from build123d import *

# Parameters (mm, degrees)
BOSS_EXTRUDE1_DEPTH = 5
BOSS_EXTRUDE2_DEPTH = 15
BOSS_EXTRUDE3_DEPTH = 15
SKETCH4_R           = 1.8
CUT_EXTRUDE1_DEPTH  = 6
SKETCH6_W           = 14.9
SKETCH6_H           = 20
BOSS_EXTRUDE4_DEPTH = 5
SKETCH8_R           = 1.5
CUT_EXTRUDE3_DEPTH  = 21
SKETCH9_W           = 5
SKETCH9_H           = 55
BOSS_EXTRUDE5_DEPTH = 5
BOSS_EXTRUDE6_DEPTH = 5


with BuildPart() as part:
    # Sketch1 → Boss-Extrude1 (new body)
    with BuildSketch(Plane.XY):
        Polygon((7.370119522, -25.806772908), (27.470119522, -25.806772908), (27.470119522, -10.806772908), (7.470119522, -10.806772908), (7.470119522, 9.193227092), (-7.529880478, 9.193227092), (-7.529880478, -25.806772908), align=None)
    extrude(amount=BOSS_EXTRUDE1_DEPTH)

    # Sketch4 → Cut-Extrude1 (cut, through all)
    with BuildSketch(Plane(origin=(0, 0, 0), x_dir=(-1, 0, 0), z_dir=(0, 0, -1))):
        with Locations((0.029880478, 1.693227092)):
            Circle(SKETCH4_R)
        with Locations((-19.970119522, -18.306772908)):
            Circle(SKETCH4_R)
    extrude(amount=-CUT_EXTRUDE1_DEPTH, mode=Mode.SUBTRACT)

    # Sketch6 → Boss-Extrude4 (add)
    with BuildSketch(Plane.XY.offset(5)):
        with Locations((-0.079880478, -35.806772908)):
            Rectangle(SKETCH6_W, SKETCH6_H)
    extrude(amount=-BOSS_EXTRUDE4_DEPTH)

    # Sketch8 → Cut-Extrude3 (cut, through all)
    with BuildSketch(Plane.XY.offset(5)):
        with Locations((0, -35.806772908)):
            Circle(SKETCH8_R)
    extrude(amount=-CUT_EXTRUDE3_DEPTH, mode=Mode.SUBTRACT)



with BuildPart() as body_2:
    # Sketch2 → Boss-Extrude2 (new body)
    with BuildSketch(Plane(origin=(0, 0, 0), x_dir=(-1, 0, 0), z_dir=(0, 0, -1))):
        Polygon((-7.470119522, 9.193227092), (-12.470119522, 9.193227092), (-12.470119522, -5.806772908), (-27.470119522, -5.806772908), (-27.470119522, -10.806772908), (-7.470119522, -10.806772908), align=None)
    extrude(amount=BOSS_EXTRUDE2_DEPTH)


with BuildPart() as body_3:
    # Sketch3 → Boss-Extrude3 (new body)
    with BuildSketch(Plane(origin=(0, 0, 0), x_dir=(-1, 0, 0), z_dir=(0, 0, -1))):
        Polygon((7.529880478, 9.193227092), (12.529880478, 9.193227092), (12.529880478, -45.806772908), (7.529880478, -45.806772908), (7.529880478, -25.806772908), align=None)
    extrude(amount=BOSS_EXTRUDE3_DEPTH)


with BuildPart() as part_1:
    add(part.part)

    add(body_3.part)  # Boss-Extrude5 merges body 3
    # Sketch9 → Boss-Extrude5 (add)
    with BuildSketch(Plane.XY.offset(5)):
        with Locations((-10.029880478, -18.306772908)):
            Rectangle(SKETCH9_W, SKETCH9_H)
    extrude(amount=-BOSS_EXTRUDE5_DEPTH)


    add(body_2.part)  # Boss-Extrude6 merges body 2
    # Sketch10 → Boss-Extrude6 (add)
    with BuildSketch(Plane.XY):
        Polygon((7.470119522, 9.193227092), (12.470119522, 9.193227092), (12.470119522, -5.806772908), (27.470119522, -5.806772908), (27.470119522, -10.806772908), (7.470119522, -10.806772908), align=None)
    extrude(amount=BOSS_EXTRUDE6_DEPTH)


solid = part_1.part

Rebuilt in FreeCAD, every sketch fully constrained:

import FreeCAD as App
import Part
import Sketcher

V = App.Vector
Q = App.Units.Quantity

doc = App.newDocument("Part")
body = doc.addObject("PartDesign::Body", "Body")

# Sketch on XY plane
sketch1 = doc.addObject("Sketcher::SketchObject", "Sketch")
body.addObject(sketch1)
sketch1.AttachmentSupport = (doc.XY_Plane, [""])
sketch1.MapMode = "FlatFace"
sketch1.addGeometry([
    Part.LineSegment(V(27.47012, -25.806773, 0), V(27.47012, -10.806773, 0)),  # 0
    Part.LineSegment(V(27.47012, -10.806773, 0), V(7.47012, -10.806773, 0)),  # 1
    Part.LineSegment(V(7.47012, -10.806773, 0), V(7.47012, 9.193227, 0)),  # 2
    Part.LineSegment(V(7.47012, 9.193227, 0), V(-7.52988, 9.193227, 0)),  # 3
    Part.LineSegment(V(-7.52988, 9.193227, 0), V(-7.52988, -25.806773, 0)),  # 4
    Part.LineSegment(V(-7.52988, -25.806773, 0), V(27.47012, -25.806773, 0)),  # 5
], False)
sketch1.addConstraint([
    Sketcher.Constraint("Coincident", 0, 2, 1, 1),
    Sketcher.Constraint("Coincident", 1, 2, 2, 1),
    Sketcher.Constraint("Coincident", 2, 2, 3, 1),
    Sketcher.Constraint("Coincident", 3, 2, 4, 1),
    Sketcher.Constraint("Coincident", 4, 2, 5, 1),
    Sketcher.Constraint("Coincident", 5, 2, 0, 1),
    Sketcher.Constraint("Vertical", 0),
    Sketcher.Constraint("Horizontal", 1),
    Sketcher.Constraint("Vertical", 2),
    Sketcher.Constraint("Horizontal", 3),
    Sketcher.Constraint("Vertical", 4),
    Sketcher.Constraint("Horizontal", 5),
    Sketcher.Constraint("Equal", 3, 0),
    Sketcher.Constraint("Equal", 1, 2),
    Sketcher.Constraint("DistanceX", 1, 2, 1, 1, Q("20 mm")),
    Sketcher.Constraint("DistanceX", 3, 2, 3, 1, Q("15 mm")),
    Sketcher.Constraint("DistanceX", -1, 1, 0, 2, Q("27.47012 mm")),
    Sketcher.Constraint("DistanceY", 0, 2, -1, 1, Q("10.806773 mm")),
])
pad1 = doc.addObject("PartDesign::Pad", "Pad")
body.addObject(pad1)
pad1.Profile = sketch1
pad1.Length = 5

# Sketch on XY plane
sketch2 = doc.addObject("Sketcher::SketchObject", "Sketch001")
body.addObject(sketch2)
sketch2.AttachmentSupport = (doc.XY_Plane, [""])
sketch2.MapMode = "FlatFace"
sketch2.addGeometry([
    Part.Circle(V(-0.02988, 1.693227, 0), V(0, 0, 1), 1.8),
    Part.Circle(V(19.97012, -18.306773, 0), V(0, 0, 1), 1.8),
], False)
sketch2.addConstraint([
    Sketcher.Constraint("Equal", 0, 1),
    Sketcher.Constraint("Diameter", 0, Q("3.6 mm")),
    Sketcher.Constraint("DistanceX", 0, 3, 1, 3, Q("20 mm")),
    Sketcher.Constraint("DistanceY", 1, 3, 0, 3, Q("20 mm")),
    Sketcher.Constraint("DistanceX", 0, 3, -1, 1, Q("0.02988 mm")),
    Sketcher.Constraint("DistanceY", -1, 1, 0, 3, Q("1.693227 mm")),
])
pocket1 = doc.addObject("PartDesign::Pocket", "Pocket")
body.addObject(pocket1)
pocket1.Profile = sketch2
pocket1.Type = "ThroughAll"
pocket1.Reversed = True

# Sketch on XY plane
sketch3 = doc.addObject("Sketcher::SketchObject", "Sketch002")
body.addObject(sketch3)
sketch3.AttachmentSupport = (doc.XY_Plane, [""])
sketch3.MapMode = "FlatFace"
sketch3.AttachmentOffset = App.Placement(V(0, 0, 5), App.Rotation())
sketch3.addGeometry([
    Part.LineSegment(V(-7.52988, -25.806773, 0), V(-7.52988, -45.806773, 0)),
    Part.LineSegment(V(-7.52988, -45.806773, 0), V(7.37012, -45.806773, 0)),
    Part.LineSegment(V(7.37012, -45.806773, 0), V(7.37012, -25.806773, 0)),
    Part.LineSegment(V(7.37012, -25.806773, 0), V(-7.52988, -25.806773, 0)),
], False)
sketch3.addConstraint([
    Sketcher.Constraint("Coincident", 0, 2, 1, 1),
    Sketcher.Constraint("Coincident", 1, 2, 2, 1),
    Sketcher.Constraint("Coincident", 2, 2, 3, 1),
    Sketcher.Constraint("Coincident", 3, 2, 0, 1),
    Sketcher.Constraint("Vertical", 0),
    Sketcher.Constraint("Horizontal", 1),
    Sketcher.Constraint("Vertical", 2),
    Sketcher.Constraint("Horizontal", 3),
    Sketcher.Constraint("DistanceY", 0, 2, 0, 1, Q("20 mm")),
    Sketcher.Constraint("DistanceX", 1, 1, 1, 2, Q("14.9 mm")),
    Sketcher.Constraint("DistanceX", 0, 2, -1, 1, Q("7.52988 mm")),
    Sketcher.Constraint("DistanceY", 0, 2, -1, 1, Q("45.806773 mm")),
])
pad2 = doc.addObject("PartDesign::Pad", "Pad001")
body.addObject(pad2)
pad2.Profile = sketch3
pad2.Length = 5
pad2.Reversed = True

# Sketch on XY plane
sketch4 = doc.addObject("Sketcher::SketchObject", "Sketch003")
body.addObject(sketch4)
sketch4.AttachmentSupport = (doc.XY_Plane, [""])
sketch4.MapMode = "FlatFace"
sketch4.AttachmentOffset = App.Placement(V(0, 0, 5), App.Rotation())
sketch4.addGeometry(Part.Circle(V(0, -35.806773, 0), V(0, 0, 1), 1.5), False)
sketch4.addConstraint([
    Sketcher.Constraint("PointOnObject", 0, 3, -2),
    Sketcher.Constraint("Diameter", 0, Q("3 mm")),
    Sketcher.Constraint("DistanceY", 0, 3, -1, 1, Q("35.806773 mm")),
])
pocket2 = doc.addObject("PartDesign::Pocket", "Pocket001")
body.addObject(pocket2)
pocket2.Profile = sketch4
pocket2.Type = "ThroughAll"
body2 = doc.addObject("PartDesign::Body", "Body001")

# Sketch on XY plane
sketch5 = doc.addObject("Sketcher::SketchObject", "Sketch004")
body2.addObject(sketch5)
sketch5.AttachmentSupport = (doc.getObject("XY_Plane001"), [""])
sketch5.MapMode = "FlatFace"
sketch5.addGeometry([
    Part.LineSegment(V(7.47012, 9.193227, 0), V(12.47012, 9.193227, 0)),  # 0
    Part.LineSegment(V(12.47012, 9.193227, 0), V(12.47012, -5.806773, 0)),  # 1
    Part.LineSegment(V(12.47012, -5.806773, 0), V(27.47012, -5.806773, 0)),  # 2
    Part.LineSegment(V(27.47012, -5.806773, 0), V(27.47012, -10.806773, 0)),  # 3
    Part.LineSegment(V(27.47012, -10.806773, 0), V(7.47012, -10.806773, 0)),  # 4
    Part.LineSegment(V(7.47012, -10.806773, 0), V(7.47012, 9.193227, 0)),  # 5
], False)
sketch5.addConstraint([
    Sketcher.Constraint("Coincident", 0, 2, 1, 1),
    Sketcher.Constraint("Coincident", 1, 2, 2, 1),
    Sketcher.Constraint("Coincident", 2, 2, 3, 1),
    Sketcher.Constraint("Coincident", 3, 2, 4, 1),
    Sketcher.Constraint("Coincident", 4, 2, 5, 1),
    Sketcher.Constraint("Coincident", 5, 2, 0, 1),
    Sketcher.Constraint("Horizontal", 0),
    Sketcher.Constraint("Vertical", 1),
    Sketcher.Constraint("Horizontal", 2),
    Sketcher.Constraint("Vertical", 3),
    Sketcher.Constraint("Horizontal", 4),
    Sketcher.Constraint("Vertical", 5),
    Sketcher.Constraint("Equal", 2, 1),
    Sketcher.Constraint("Equal", 0, 3),
    Sketcher.Constraint("DistanceX", 0, 1, 0, 2, Q("5 mm")),
    Sketcher.Constraint("DistanceX", 2, 1, 2, 2, Q("15 mm")),
    Sketcher.Constraint("DistanceX", -1, 1, 0, 2, Q("12.47012 mm")),
    Sketcher.Constraint("DistanceY", -1, 1, 0, 2, Q("9.193227 mm")),
])
pad3 = doc.addObject("PartDesign::Pad", "Pad002")
body2.addObject(pad3)
pad3.Profile = sketch5
pad3.Length = 15
pad3.Reversed = True
body3 = doc.addObject("PartDesign::Body", "Body002")

# Sketch on XY plane
sketch6 = doc.addObject("Sketcher::SketchObject", "Sketch005")
body3.addObject(sketch6)
sketch6.AttachmentSupport = (doc.getObject("XY_Plane002"), [""])
sketch6.MapMode = "FlatFace"
sketch6.addGeometry([
    Part.LineSegment(V(-12.52988, 9.193227, 0), V(-7.52988, 9.193227, 0)),
    Part.LineSegment(V(-7.52988, 9.193227, 0), V(-7.52988, -45.806773, 0)),
    Part.LineSegment(V(-7.52988, -45.806773, 0), V(-12.52988, -45.806773, 0)),
    Part.LineSegment(V(-12.52988, -45.806773, 0), V(-12.52988, 9.193227, 0)),
], False)
sketch6.addConstraint([
    Sketcher.Constraint("Coincident", 0, 2, 1, 1),
    Sketcher.Constraint("Coincident", 1, 2, 2, 1),
    Sketcher.Constraint("Coincident", 2, 2, 3, 1),
    Sketcher.Constraint("Coincident", 3, 2, 0, 1),
    Sketcher.Constraint("Horizontal", 0),
    Sketcher.Constraint("Vertical", 1),
    Sketcher.Constraint("Horizontal", 2),
    Sketcher.Constraint("Vertical", 3),
    Sketcher.Constraint("DistanceX", 0, 1, 0, 2, Q("5 mm")),
    Sketcher.Constraint("DistanceY", 1, 2, 1, 1, Q("55 mm")),
    Sketcher.Constraint("DistanceX", 0, 2, -1, 1, Q("7.52988 mm")),
    Sketcher.Constraint("DistanceY", -1, 1, 0, 2, Q("9.193227 mm")),
])
pad4 = doc.addObject("PartDesign::Pad", "Pad003")
body3.addObject(pad4)
pad4.Profile = sketch6
pad4.Length = 15
pad4.Reversed = True
body.AllowCompound = True
doc.recompute()

boolean = doc.addObject("PartDesign::Boolean", "Boolean")
body.addObject(boolean)
boolean.Type = "Fuse"
boolean.addObjects([body3])

# Sketch on XY plane
sketch7 = doc.addObject("Sketcher::SketchObject", "Sketch006")
body.addObject(sketch7)
sketch7.AttachmentSupport = (doc.XY_Plane, [""])
sketch7.MapMode = "FlatFace"
sketch7.AttachmentOffset = App.Placement(V(0, 0, 5), App.Rotation())
sketch7.addGeometry([
    Part.LineSegment(V(-12.52988, 9.193227, 0), V(-12.52988, -45.806773, 0)),
    Part.LineSegment(V(-12.52988, -45.806773, 0), V(-7.52988, -45.806773, 0)),
    Part.LineSegment(V(-7.52988, -45.806773, 0), V(-7.52988, 9.193227, 0)),
    Part.LineSegment(V(-7.52988, 9.193227, 0), V(-12.52988, 9.193227, 0)),
], False)
sketch7.addConstraint([
    Sketcher.Constraint("Coincident", 0, 2, 1, 1),
    Sketcher.Constraint("Coincident", 1, 2, 2, 1),
    Sketcher.Constraint("Coincident", 2, 2, 3, 1),
    Sketcher.Constraint("Coincident", 3, 2, 0, 1),
    Sketcher.Constraint("Vertical", 0),
    Sketcher.Constraint("Horizontal", 1),
    Sketcher.Constraint("Vertical", 2),
    Sketcher.Constraint("Horizontal", 3),
    Sketcher.Constraint("DistanceX", 1, 1, 1, 2, Q("5 mm")),
    Sketcher.Constraint("DistanceY", 0, 2, 0, 1, Q("55 mm")),
    Sketcher.Constraint("DistanceX", 0, 2, -1, 1, Q("12.52988 mm")),
    Sketcher.Constraint("DistanceY", 0, 2, -1, 1, Q("45.806773 mm")),
])
pad5 = doc.addObject("PartDesign::Pad", "Pad004")
body.addObject(pad5)
pad5.Profile = sketch7
pad5.Length = 5
pad5.Reversed = True
doc.recompute()

boolean2 = doc.addObject("PartDesign::Boolean", "Boolean001")
body.addObject(boolean2)
boolean2.Type = "Fuse"
boolean2.addObjects([body2])

# Sketch on XY plane
sketch8 = doc.addObject("Sketcher::SketchObject", "Sketch007")
body.addObject(sketch8)
sketch8.AttachmentSupport = (doc.XY_Plane, [""])
sketch8.MapMode = "FlatFace"
sketch8.addGeometry([
    Part.LineSegment(V(12.47012, 9.193227, 0), V(7.47012, 9.193227, 0)),  # 0
    Part.LineSegment(V(7.47012, 9.193227, 0), V(7.47012, -10.806773, 0)),  # 1
    Part.LineSegment(V(7.47012, -10.806773, 0), V(27.47012, -10.806773, 0)),  # 2
    Part.LineSegment(V(27.47012, -10.806773, 0), V(27.47012, -5.806773, 0)),  # 3
    Part.LineSegment(V(27.47012, -5.806773, 0), V(12.47012, -5.806773, 0)),  # 4
    Part.LineSegment(V(12.47012, -5.806773, 0), V(12.47012, 9.193227, 0)),  # 5
], False)
sketch8.addConstraint([
    Sketcher.Constraint("Coincident", 0, 2, 1, 1),
    Sketcher.Constraint("Coincident", 1, 2, 2, 1),
    Sketcher.Constraint("Coincident", 2, 2, 3, 1),
    Sketcher.Constraint("Coincident", 3, 2, 4, 1),
    Sketcher.Constraint("Coincident", 4, 2, 5, 1),
    Sketcher.Constraint("Coincident", 5, 2, 0, 1),
    Sketcher.Constraint("Horizontal", 0),
    Sketcher.Constraint("Vertical", 1),
    Sketcher.Constraint("Horizontal", 2),
    Sketcher.Constraint("Vertical", 3),
    Sketcher.Constraint("Horizontal", 4),
    Sketcher.Constraint("Vertical", 5),
    Sketcher.Constraint("Equal", 2, 1),
    Sketcher.Constraint("Equal", 0, 3),
    Sketcher.Constraint("DistanceX", 0, 2, 0, 1, Q("5 mm")),
    Sketcher.Constraint("DistanceX", 2, 1, 2, 2, Q("20 mm")),
    Sketcher.Constraint("DistanceX", -1, 1, 0, 2, Q("7.47012 mm")),
    Sketcher.Constraint("DistanceY", -1, 1, 0, 2, Q("9.193227 mm")),
])
pad6 = doc.addObject("PartDesign::Pad", "Pad005")
body.addObject(pad6)
pad6.Profile = sketch8
pad6.Length = 5

doc.recompute()
